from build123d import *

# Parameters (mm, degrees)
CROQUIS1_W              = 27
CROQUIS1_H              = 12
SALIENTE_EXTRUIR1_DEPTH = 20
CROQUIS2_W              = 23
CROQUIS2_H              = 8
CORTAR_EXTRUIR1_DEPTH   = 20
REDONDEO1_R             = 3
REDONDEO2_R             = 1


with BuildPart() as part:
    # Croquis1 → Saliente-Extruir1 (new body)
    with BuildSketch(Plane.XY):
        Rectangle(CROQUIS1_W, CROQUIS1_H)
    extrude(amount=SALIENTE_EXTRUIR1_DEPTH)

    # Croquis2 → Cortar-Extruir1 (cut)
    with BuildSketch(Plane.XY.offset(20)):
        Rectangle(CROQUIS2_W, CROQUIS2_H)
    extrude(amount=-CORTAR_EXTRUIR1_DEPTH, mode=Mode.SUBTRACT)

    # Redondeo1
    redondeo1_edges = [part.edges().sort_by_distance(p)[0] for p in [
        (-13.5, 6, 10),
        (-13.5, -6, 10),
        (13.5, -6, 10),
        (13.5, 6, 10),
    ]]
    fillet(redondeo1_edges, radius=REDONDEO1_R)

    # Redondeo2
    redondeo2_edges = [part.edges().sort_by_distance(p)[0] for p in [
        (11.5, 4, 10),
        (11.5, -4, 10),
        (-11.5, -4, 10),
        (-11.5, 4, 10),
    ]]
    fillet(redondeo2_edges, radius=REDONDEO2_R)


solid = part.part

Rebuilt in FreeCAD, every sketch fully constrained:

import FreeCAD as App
import Part
import Sketcher

V = App.Vector


def edges_at(feature, points):
    """Names of the edges that pass closest to the given points."""
    edges = feature.Shape.Edges
    near = lambda p: min(range(len(edges)), key=lambda i: edges[i].distToShape(Part.Vertex(*p))[0])
    return sorted({f"Edge{near(p) + 1}" for p in points})

doc = App.newDocument("Part")
body = doc.addObject("PartDesign::Body", "Body")

sketch1 = doc.addObject("Sketcher::SketchObject", "Sketch")
body.addObject(sketch1)
sketch1.AttachmentSupport = (doc.XY_Plane, [""])
sketch1.MapMode = "FlatFace"
sketch1.addGeometry([
    Part.LineSegment(V(-14, 6, 0), V(-14, -6, 0)),
    Part.LineSegment(V(-14, -6, 0), V(14, -6, 0)),
    Part.LineSegment(V(14, -6, 0), V(14, 6, 0)),
    Part.LineSegment(V(14, 6, 0), V(-14, 6, 0)),
], False)
sketch1.addConstraint([
    Sketcher.Constraint("Coincident", 0, 2, 1, 1),
    Sketcher.Constraint("Coincident", 1, 2, 2, 1),
    Sketcher.Constraint("Coincident", 2, 2, 3, 1),
    Sketcher.Constraint("Coincident", 3, 2, 0, 1),
    Sketcher.Constraint("Vertical", 0),
    Sketcher.Constraint("Horizontal", 1),
    Sketcher.Constraint("Vertical", 2),
    Sketcher.Constraint("Horizontal", 3),
    Sketcher.Constraint("Symmetric", 0, 2, 2, 2, -1, 1),
    Sketcher.Constraint("DistanceX", 1, 1, 1, 2, 27.0),
    Sketcher.Constraint("DistanceY", 0, 2, 0, 1, 12.0),
])
pad1 = doc.addObject("PartDesign::Pad", "Pad")
body.addObject(pad1)
pad1.Profile = sketch1
pad1.Length = 20

sketch2 = doc.addObject("Sketcher::SketchObject", "Sketch001")
body.addObject(sketch2)
sketch2.AttachmentSupport = (doc.XY_Plane, [""])
sketch2.MapMode = "FlatFace"
sketch2.AttachmentOffset = App.Placement(V(0, 0, 20), App.Rotation())
sketch2.addGeometry([
    Part.LineSegment(V(-12, 4, 0), V(-12, -4, 0)),
    Part.LineSegment(V(-12, -4, 0), V(12, -4, 0)),
    Part.LineSegment(V(12, -4, 0), V(12, 4, 0)),
    Part.LineSegment(V(12, 4, 0), V(-12, 4, 0)),
], False)
sketch2.addConstraint([
    Sketcher.Constraint("Coincident", 0, 2, 1, 1),
    Sketcher.Constraint("Coincident", 1, 2, 2, 1),
    Sketcher.Constraint("Coincident", 2, 2, 3, 1),
    Sketcher.Constraint("Coincident", 3, 2, 0, 1),
    Sketcher.Constraint("Vertical", 0),
    Sketcher.Constraint("Horizontal", 1),
    Sketcher.Constraint("Vertical", 2),
    Sketcher.Constraint("Horizontal", 3),
    Sketcher.Constraint("Symmetric", 0, 2, 2, 2, -1, 1),
    Sketcher.Constraint("DistanceX", 1, 1, 1, 2, 23.0),
    Sketcher.Constraint("DistanceY", 0, 2, 0, 1, 8.0),
])
pocket1 = doc.addObject("PartDesign::Pocket", "Pocket")
body.addObject(pocket1)
pocket1.Profile = sketch2
pocket1.Length = 20
doc.recompute()

fillet = doc.addObject("PartDesign::Fillet", "Fillet")
body.addObject(fillet)
fillet.Base = (pocket1, edges_at(pocket1, [
    (-13.5, 6, 10),
    (-13.5, -6, 10),
    (13.5, -6, 10),
    (13.5, 6, 10),
]))
fillet.Radius = 3
doc.recompute()

fillet2 = doc.addObject("PartDesign::Fillet", "Fillet001")
body.addObject(fillet2)
fillet2.Base = (fillet, edges_at(fillet, [
    (11.5, 4, 10),
    (11.5, -4, 10),
    (-11.5, -4, 10),
    (-11.5, 4, 10),
]))
fillet2.Radius = 1

doc.recompute()
